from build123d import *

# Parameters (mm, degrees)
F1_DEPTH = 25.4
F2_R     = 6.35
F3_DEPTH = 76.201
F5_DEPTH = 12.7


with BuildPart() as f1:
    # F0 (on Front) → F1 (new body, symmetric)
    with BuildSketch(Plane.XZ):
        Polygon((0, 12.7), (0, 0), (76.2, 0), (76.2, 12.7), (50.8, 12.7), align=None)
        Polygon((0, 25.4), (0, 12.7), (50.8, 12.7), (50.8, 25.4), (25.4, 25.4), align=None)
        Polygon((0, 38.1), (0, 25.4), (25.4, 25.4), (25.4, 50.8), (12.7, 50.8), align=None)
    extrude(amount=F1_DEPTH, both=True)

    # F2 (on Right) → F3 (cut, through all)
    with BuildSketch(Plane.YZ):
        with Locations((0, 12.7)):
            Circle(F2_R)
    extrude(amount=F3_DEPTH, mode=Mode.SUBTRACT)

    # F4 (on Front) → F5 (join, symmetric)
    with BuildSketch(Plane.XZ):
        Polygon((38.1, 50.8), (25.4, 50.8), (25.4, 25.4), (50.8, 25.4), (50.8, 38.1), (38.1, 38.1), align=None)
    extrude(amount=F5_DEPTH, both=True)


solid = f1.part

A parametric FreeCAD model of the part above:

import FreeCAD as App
import Part
import Sketcher
from FreeCAD import Vector
Q = App.Units.Quantity


def add_polygon(sketch, points):
    """Adds a closed chain of lines whose ends are joined by coincident constraints."""
    first, n = sketch.GeometryCount, len(points)
    for a, b in zip(points, points[1:] + points[:1]):
        sketch.addGeometry(Part.LineSegment(App.Vector(*a, 0), App.Vector(*b, 0)), False)
    for i in range(n):
        sketch.addConstraint(Sketcher.Constraint("Coincident", first + i, 2, first + (i + 1) % n, 1))

doc = App.newDocument("Part")
body = doc.addObject("PartDesign::Body", "Body")

# Sketch on XZ plane
sketch1 = doc.addObject("Sketcher::SketchObject", "Sketch")
body.addObject(sketch1)
sketch1.AttachmentSupport = (doc.XZ_Plane, [""])
sketch1.MapMode = "FlatFace"
add_polygon(sketch1, [(0, 0), (76.2, 0), (76.2, 12.7), (50.8, 12.7), (50.8, 25.4), (25.4, 25.4), (25.4, 50.8), (12.7, 50.8), (0, 38.1)])  # lines 0-8
sketch1.addConstraint([
    Sketcher.Constraint("Horizontal", 0),
    Sketcher.Constraint("Vertical", 1),
    Sketcher.Constraint("Horizontal", 2),
    Sketcher.Constraint("Vertical", 3),
    Sketcher.Constraint("Horizontal", 4),
    Sketcher.Constraint("Vertical", 5),
    Sketcher.Constraint("Horizontal", 6),
    Sketcher.Constraint("Vertical", 8),
    Sketcher.Constraint("Coincident", 8, 2, -1, 1),
    Sketcher.Constraint("Equal", 2, 4),
    Sketcher.Constraint("Equal", 6, 1),
    Sketcher.Constraint("Equal", 1, 3),
    Sketcher.Constraint("Equal", 4, 5),
    Sketcher.Constraint("DistanceX", 0, 1, 0, 2, Q("3 in")),
    Sketcher.Constraint("DistanceX", 2, 2, 2, 1, Q("1 in")),
    Sketcher.Constraint("DistanceX", 6, 2, 6, 1, Q("0.5 in")),
    Sketcher.Constraint("DistanceY", 8, 2, 8, 1, Q("1.5 in")),
])
pad1 = doc.addObject("PartDesign::Pad", "Pad")
body.addObject(pad1)
pad1.Profile = sketch1
pad1.Length = Q("2 in")
pad1.Midplane = True

# Sketch on YZ plane
sketch2 = doc.addObject("Sketcher::SketchObject", "Sketch001")
body.addObject(sketch2)
sketch2.AttachmentSupport = (doc.YZ_Plane, [""])
sketch2.MapMode = "FlatFace"
sketch2.addGeometry(Part.Circle(Vector(0, 12.7, 0), Vector(0, 0, 1), 6.35), False)
sketch2.addConstraint([
    Sketcher.Constraint("PointOnObject", 0, 3, -2),
    Sketcher.Constraint("Diameter", 0, Q("0.5 in")),
    Sketcher.Constraint("DistanceY", -1, 1, 0, 3, Q("0.5 in")),
])
pocket1 = doc.addObject("PartDesign::Pocket", "Pocket")
body.addObject(pocket1)
pocket1.Profile = sketch2
pocket1.Type = "ThroughAll"
pocket1.Reversed = True

# Sketch on XZ plane
sketch3 = doc.addObject("Sketcher::SketchObject", "Sketch002")
body.addObject(sketch3)
sketch3.AttachmentSupport = (doc.XZ_Plane, [""])
sketch3.MapMode = "FlatFace"
add_polygon(sketch3, [(38.1, 50.8), (25.4, 50.8), (25.4, 25.4), (50.8, 25.4), (50.8, 38.1), (38.1, 38.1)])  # lines 0-5
sketch3.addConstraint([
    Sketcher.Constraint("Horizontal", 0),
    Sketcher.Constraint("Vertical", 1),
    Sketcher.Constraint("Horizontal", 2),
    Sketcher.Constraint("Vertical", 3),
    Sketcher.Constraint("Horizontal", 4),
    Sketcher.Constraint("Vertical", 5),
    Sketcher.Constraint("Equal", 0, 4),
    Sketcher.Constraint("Equal", 2, 1),
    Sketcher.Constraint("Equal", 4, 3),
    Sketcher.Constraint("DistanceX", 2, 1, 2, 2, Q("1 in")),
    Sketcher.Constraint("DistanceX", -1, 1, 0, 2, Q("1 in")),
    Sketcher.Constraint("DistanceY", -1, 1, 0, 2, Q("2 in")),
])
pad2 = doc.addObject("PartDesign::Pad", "Pad001")
body.addObject(pad2)
pad2.Profile = sketch3
pad2.Length = Q("1 in")
pad2.Midplane = True

doc.recompute()
